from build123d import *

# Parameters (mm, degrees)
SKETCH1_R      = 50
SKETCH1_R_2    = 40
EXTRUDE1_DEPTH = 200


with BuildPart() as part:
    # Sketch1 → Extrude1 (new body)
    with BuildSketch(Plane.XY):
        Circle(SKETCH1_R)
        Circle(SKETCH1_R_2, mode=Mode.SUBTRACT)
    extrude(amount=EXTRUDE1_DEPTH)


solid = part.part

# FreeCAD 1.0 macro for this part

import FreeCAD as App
import Part
import Sketcher
Q = App.Units.Quantity

doc = App.newDocument("Part")
body = doc.addObject("PartDesign::Body", "Body")

sketch1 = body.newObject("Sketcher::SketchObject", "Sketch")
sketch1.AttachmentSupport = (doc.getObject("XY_Plane"), [""])
sketch1.MapMode = "FlatFace"
sketch1.addGeometry([
    Part.Circle(App.Vector(0, 0, 0), App.Vector(0, 0, 1), 50),
    Part.Circle(App.Vector(0, 0, 0), App.Vector(0, 0, 1), 40),
], False)
sketch1.addConstraint([
    Sketcher.Constraint("Coincident", 0, 3, -1, 1),
    Sketcher.Constraint("Coincident", 1, 3, -1, 1),
    Sketcher.Constraint("Diameter", 0, Q("100 mm")),
    Sketcher.Constraint("Diameter", 1, Q("80 mm")),
])
pad1 = body.newObject("PartDesign::Pad", "Pad")
pad1.Profile = sketch1
pad1.Length = 200

doc.recompute()
